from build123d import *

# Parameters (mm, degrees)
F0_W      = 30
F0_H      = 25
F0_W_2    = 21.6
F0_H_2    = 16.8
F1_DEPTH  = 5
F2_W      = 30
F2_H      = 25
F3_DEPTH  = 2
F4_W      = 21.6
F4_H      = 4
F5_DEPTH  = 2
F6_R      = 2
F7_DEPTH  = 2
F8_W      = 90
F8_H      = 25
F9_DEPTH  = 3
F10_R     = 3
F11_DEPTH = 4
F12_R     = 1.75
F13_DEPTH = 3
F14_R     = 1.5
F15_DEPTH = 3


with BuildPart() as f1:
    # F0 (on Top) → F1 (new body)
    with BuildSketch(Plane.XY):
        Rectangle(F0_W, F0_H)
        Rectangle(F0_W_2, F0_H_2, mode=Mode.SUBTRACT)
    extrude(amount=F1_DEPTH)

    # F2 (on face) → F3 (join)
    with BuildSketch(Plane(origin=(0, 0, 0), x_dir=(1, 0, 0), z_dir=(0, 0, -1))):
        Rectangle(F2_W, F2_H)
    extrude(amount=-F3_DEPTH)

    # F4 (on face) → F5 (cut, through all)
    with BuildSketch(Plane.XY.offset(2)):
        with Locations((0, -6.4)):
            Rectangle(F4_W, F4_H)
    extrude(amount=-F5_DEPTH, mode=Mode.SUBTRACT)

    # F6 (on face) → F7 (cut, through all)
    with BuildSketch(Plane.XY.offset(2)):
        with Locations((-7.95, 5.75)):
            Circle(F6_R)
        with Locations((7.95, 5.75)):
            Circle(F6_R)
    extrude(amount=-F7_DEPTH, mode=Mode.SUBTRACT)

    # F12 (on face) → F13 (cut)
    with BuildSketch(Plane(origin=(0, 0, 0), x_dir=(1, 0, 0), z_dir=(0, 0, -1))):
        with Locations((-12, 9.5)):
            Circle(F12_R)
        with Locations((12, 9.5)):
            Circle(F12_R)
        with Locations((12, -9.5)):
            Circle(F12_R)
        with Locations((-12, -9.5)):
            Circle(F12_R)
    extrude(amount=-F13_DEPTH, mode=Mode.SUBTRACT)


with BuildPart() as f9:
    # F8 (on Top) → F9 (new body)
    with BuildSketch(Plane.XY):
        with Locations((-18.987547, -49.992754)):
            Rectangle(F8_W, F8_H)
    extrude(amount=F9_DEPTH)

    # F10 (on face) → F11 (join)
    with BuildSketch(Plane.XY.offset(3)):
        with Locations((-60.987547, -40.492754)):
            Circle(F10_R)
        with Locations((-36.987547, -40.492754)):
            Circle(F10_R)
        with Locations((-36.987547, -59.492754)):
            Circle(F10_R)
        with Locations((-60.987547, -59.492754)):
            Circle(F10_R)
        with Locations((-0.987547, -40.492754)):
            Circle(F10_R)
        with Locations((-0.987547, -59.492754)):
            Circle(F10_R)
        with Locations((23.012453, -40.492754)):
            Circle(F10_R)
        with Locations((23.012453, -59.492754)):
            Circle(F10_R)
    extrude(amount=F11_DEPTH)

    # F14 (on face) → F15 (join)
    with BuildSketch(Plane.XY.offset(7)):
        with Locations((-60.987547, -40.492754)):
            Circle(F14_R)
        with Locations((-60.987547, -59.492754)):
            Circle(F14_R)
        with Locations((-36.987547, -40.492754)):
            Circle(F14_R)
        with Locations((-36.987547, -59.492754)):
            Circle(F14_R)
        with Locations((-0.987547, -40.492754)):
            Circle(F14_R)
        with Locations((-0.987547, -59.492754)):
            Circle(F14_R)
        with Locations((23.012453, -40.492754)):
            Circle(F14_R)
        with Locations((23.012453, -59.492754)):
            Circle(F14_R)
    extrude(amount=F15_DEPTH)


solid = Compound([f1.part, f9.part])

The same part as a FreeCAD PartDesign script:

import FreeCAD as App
import Part
import Sketcher

V = App.Vector


def add_polygon(sketch, points):
    """Adds a closed chain of lines whose ends are joined by coincident constraints."""
    first, n = sketch.GeometryCount, len(points)
    for a, b in zip(points, points[1:] + points[:1]):
        sketch.addGeometry(Part.LineSegment(App.Vector(*a, 0), App.Vector(*b, 0)), False)
    for i in range(n):
        sketch.addConstraint(Sketcher.Constraint("Coincident", first + i, 2, first + (i + 1) % n, 1))

doc = App.newDocument("Part")
params = doc.addObject("Spreadsheet::Sheet", "Params")
for row, (alias, value) in enumerate([
    ("sketch1_width", "30 mm"),
    ("sketch1_height", "25 mm"),
    ("sketch1_width2", "21.6 mm"),
    ("sketch1_height2", "16.8 mm"),
    ("pad1_length", "5 mm"),
    ("sketch2_width", "30 mm"),
    ("sketch2_height", "25 mm"),
    ("pad2_length", "2 mm"),
    ("sketch3_height", "4 mm"),
    ("sketch3_width", "21.6 mm"),
    ("sketch4_diameter", "4 mm"),
    ("sketch5_diameter", "3.5 mm"),
    ("pocket3_length", "3 mm"),
    ("sketch6_width", "90 mm"),
    ("sketch6_height", "25 mm"),
    ("pad3_length", "3 mm"),
    ("sketch7_diameter", "6 mm"),
    ("pad4_length", "4 mm"),
    ("sketch8_diameter", "3 mm"),
    ("pad5_length", "3 mm"),
], start=1):
    params.set(f"A{row}", alias)
    params.set(f"B{row}", "=" + value)
    params.setAlias(f"B{row}", alias)

body = doc.addObject("PartDesign::Body", "Body")

sketch1 = body.newObject("Sketcher::SketchObject", "Sketch")
sketch1.AttachmentSupport = (doc.getObject("XY_Plane"), [""])
sketch1.MapMode = "FlatFace"
add_polygon(sketch1, [(-15, 12), (-15, -12), (15, -12), (15, 12)])
add_polygon(sketch1, [(11, -8), (-11, -8), (-11, 8), (11, 8)])
sketch1.addConstraint([
    Sketcher.Constraint("Vertical", 0),
    Sketcher.Constraint("Horizontal", 1),
    Sketcher.Constraint("Vertical", 2),
    Sketcher.Constraint("Horizontal", 3),
    Sketcher.Constraint("Horizontal", 4),
    Sketcher.Constraint("Vertical", 5),
    Sketcher.Constraint("Horizontal", 6),
    Sketcher.Constraint("Vertical", 7),
    Sketcher.Constraint("Symmetric", 0, 2, 2, 2, -1, 1),
    Sketcher.Constraint("Symmetric", 4, 2, 6, 2, -1, 1),
    Sketcher.Constraint("DistanceX", 1, 1, 1, 2, 30.0),
    Sketcher.Constraint("DistanceY", 0, 2, 0, 1, 25.0),
    Sketcher.Constraint("DistanceX", 4, 2, 4, 1, 21.6),
    Sketcher.Constraint("DistanceY", 5, 1, 5, 2, 16.8),
])
sketch1.setExpression("Constraints[18]", "Params.sketch1_width")
sketch1.setExpression("Constraints[19]", "Params.sketch1_height")
sketch1.setExpression("Constraints[20]", "Params.sketch1_width2")
sketch1.setExpression("Constraints[21]", "Params.sketch1_height2")
pad1 = body.newObject("PartDesign::Pad", "Pad")
pad1.Profile = sketch1
pad1.setExpression("Length", "Params.pad1_length")

sketch2 = body.newObject("Sketcher::SketchObject", "Sketch001")
sketch2.AttachmentSupport = (doc.getObject("XY_Plane"), [""])
sketch2.MapMode = "FlatFace"
add_polygon(sketch2, [(-15, -12), (-15, 12), (15, 12), (15, -12)])
sketch2.addConstraint([
    Sketcher.Constraint("Vertical", 0),
    Sketcher.Constraint("Horizontal", 1),
    Sketcher.Constraint("Vertical", 2),
    Sketcher.Constraint("Horizontal", 3),
    Sketcher.Constraint("Symmetric", 0, 2, 2, 2, -1, 1),
    Sketcher.Constraint("DistanceX", 1, 1, 1, 2, 30.0),
    Sketcher.Constraint("DistanceY", 0, 1, 0, 2, 25.0),
])
sketch2.setExpression("Constraints[9]", "Params.sketch2_width")
sketch2.setExpression("Constraints[10]", "Params.sketch2_height")
pad2 = body.newObject("PartDesign::Pad", "Pad001")
pad2.Profile = sketch2
pad2.setExpression("Length", "Params.pad2_length")

sketch3 = body.newObject("Sketcher::SketchObject", "Sketch002")
sketch3.AttachmentSupport = (doc.getObject("XY_Plane"), [""])
sketch3.MapMode = "FlatFace"
sketch3.AttachmentOffset = App.Placement(V(0, 0, 2), App.Rotation())
add_polygon(sketch3, [(-10.8, -4.4), (-10.8, -8.4), (10.8, -8.4), (10.8, -4.4)])
sketch3.addConstraint([
    Sketcher.Constraint("Vertical", 0),
    Sketcher.Constraint("Horizontal", 1),
    Sketcher.Constraint("Vertical", 2),
    Sketcher.Constraint("Horizontal", 3),
    Sketcher.Constraint("DistanceY", 0, 2, 0, 1, 4.0),
    Sketcher.Constraint("DistanceX", 1, 1, 1, 2, 21.6),
    Sketcher.Constraint("DistanceX", 0, 2, -1, 1, 10.8),
    Sketcher.Constraint("DistanceY", 0, 2, -1, 1, 8.4),
])
sketch3.setExpression("Constraints[8]", "Params.sketch3_height")
sketch3.setExpression("Constraints[9]", "Params.sketch3_width")
pocket1 = body.newObject("PartDesign::Pocket", "Pocket")
pocket1.Profile = sketch3
pocket1.Type = "ThroughAll"

sketch4 = body.newObject("Sketcher::SketchObject", "Sketch003")
sketch4.AttachmentSupport = (doc.getObject("XY_Plane"), [""])
sketch4.MapMode = "FlatFace"
sketch4.AttachmentOffset = App.Placement(V(0, 0, 2), App.Rotation())
sketch4.addGeometry([
    Part.Circle(V(-8, 5.8, 0), V(0, 0, 1), 2),
    Part.Circle(V(8, 5.8, 0), V(0, 0, 1), 2),
], False)
sketch4.addConstraint([
    Sketcher.Constraint("Equal", 0, 1),
    Sketcher.Constraint("Symmetric", 0, 3, 1, 3, -2),
    Sketcher.Constraint("Diameter", 0, 4.0),
    Sketcher.Constraint("DistanceX", 0, 3, 1, 3, 15.9),
    Sketcher.Constraint("DistanceY", -1, 1, 0, 3, 5.75),
])
sketch4.setExpression("Constraints[2]", "Params.sketch4_diameter")
pocket2 = body.newObject("PartDesign::Pocket", "Pocket001")
pocket2.Profile = sketch4
pocket2.Type = "ThroughAll"

sketch5 = body.newObject("Sketcher::SketchObject", "Sketch004")
sketch5.AttachmentSupport = (doc.getObject("XY_Plane"), [""])
sketch5.MapMode = "FlatFace"
sketch5.addGeometry([
    Part.Circle(V(-12, -9.5, 0), V(0, 0, 1), 1.8),
    Part.Circle(V(12, -9.5, 0), V(0, 0, 1), 1.8),
    Part.Circle(V(12, 9.5, 0), V(0, 0, 1), 1.8),
    Part.Circle(V(-12, 9.5, 0), V(0, 0, 1), 1.8),
], False)
sketch5.addConstraint([
    Sketcher.Constraint("Equal", 0, 1),
    Sketcher.Constraint("Equal", 1, 2),
    Sketcher.Constraint("Equal", 2, 3),
    Sketcher.Constraint("Symmetric", 0, 3, 2, 3, -1, 1),
    Sketcher.Constraint("Symmetric", 1, 3, 3, 3, -1, 1),
    Sketcher.Constraint("Symmetric", 0, 3, 1, 3, -2),
    Sketcher.Constraint("Diameter", 0, 3.5),
    Sketcher.Constraint("DistanceX", 0, 3, -1, 1, 12.0),
    Sketcher.Constraint("DistanceY", 1, 3, 2, 3, 19.0),
])
sketch5.setExpression("Constraints[6]", "Params.sketch5_diameter")
pocket3 = body.newObject("PartDesign::Pocket", "Pocket002")
pocket3.Profile = sketch5
pocket3.setExpression("Length", "Params.pocket3_length")
pocket3.Reversed = True
body2 = doc.addObject("PartDesign::Body", "Body001")

sketch6 = body2.newObject("Sketcher::SketchObject", "Sketch005")
sketch6.AttachmentSupport = (doc.getObject("XY_Plane001"), [""])
sketch6.MapMode = "FlatFace"
add_polygon(sketch6, [(-64, -37), (-64, -62), (26, -62), (26, -37)])
sketch6.addConstraint([
    Sketcher.Constraint("Vertical", 0),
    Sketcher.Constraint("Horizontal", 1),
    Sketcher.Constraint("Vertical", 2),
    Sketcher.Constraint("Horizontal", 3),
    Sketcher.Constraint("DistanceX", 1, 1, 1, 2, 90.0),
    Sketcher.Constraint("DistanceY", 0, 2, 0, 1, 25.0),
    Sketcher.Constraint("DistanceX", 0, 2, -1, 1, 63.987547),
    Sketcher.Constraint("DistanceY", 0, 2, -1, 1, 62.492754),
])
sketch6.setExpression("Constraints[8]", "Params.sketch6_width")
sketch6.setExpression("Constraints[9]", "Params.sketch6_height")
pad3 = body2.newObject("PartDesign::Pad", "Pad002")
pad3.Profile = sketch6
pad3.setExpression("Length", "Params.pad3_length")

sketch7 = body2.newObject("Sketcher::SketchObject", "Sketch006")
sketch7.AttachmentSupport = (doc.getObject("XY_Plane001"), [""])
sketch7.MapMode = "FlatFace"
sketch7.AttachmentOffset = App.Placement(V(0, 0, 3), App.Rotation())
sketch7.addGeometry([
    Part.Circle(V(-61, -40.5, 0), V(0, 0, 1), 3),
    Part.Circle(V(-37, -40.5, 0), V(0, 0, 1), 3),
    Part.Circle(V(-37, -59.5, 0), V(0, 0, 1), 3),
    Part.Circle(V(-61, -59.5, 0), V(0, 0, 1), 3),
    Part.Circle(V(-1, -40.5, 0), V(0, 0, 1), 3),
    Part.Circle(V(-1, -59.5, 0), V(0, 0, 1), 3),
    Part.Circle(V(23, -40.5, 0), V(0, 0, 1), 3),
    Part.Circle(V(23, -59.5, 0), V(0, 0, 1), 3),
], False)
sketch7.addConstraint([
    Sketcher.Constraint("Equal", 0, 1),
    Sketcher.Constraint("Equal", 1, 2),
    Sketcher.Constraint("Equal", 2, 3),
    Sketcher.Constraint("Equal", 3, 4),
    Sketcher.Constraint("Equal", 4, 5),
    Sketcher.Constraint("Equal", 5, 6),
    Sketcher.Constraint("Equal", 6, 7),
    Sketcher.Constraint("Horizontal", 0, 3, 1, 3),
    Sketcher.Constraint("Horizontal", 2, 3, 3, 3),
    Sketcher.Constraint("Horizontal", 1, 3, 4, 3),
    Sketcher.Constraint("Horizontal", 3, 3, 5, 3),
    Sketcher.Constraint("Horizontal", 4, 3, 6, 3),
    Sketcher.Constraint("Horizontal", 5, 3, 7, 3),
    Sketcher.Constraint("Vertical", 1, 3, 2, 3),
    Sketcher.Constraint("Vertical", 0, 3, 3, 3),
    Sketcher.Constraint("Vertical", 4, 3, 5, 3),
    Sketcher.Constraint("Vertical", 6, 3, 7, 3),
    Sketcher.Constraint("Diameter", 0, 6.0),
    Sketcher.Constraint("DistanceX", 0, 3, 1, 3, 24.0),
    Sketcher.Constraint("DistanceY", 2, 3, 1, 3, 19.0),
    Sketcher.Constraint("DistanceX", 1, 3, 4, 3, 36.0),
    Sketcher.Constraint("DistanceX", 4, 3, 6, 3, 24.0),
    Sketcher.Constraint("DistanceX", 0, 3, -1, 1, 60.987547),
    Sketcher.Constraint("DistanceY", 0, 3, -1, 1, 40.492754),
])
sketch7.setExpression("Constraints[17]", "Params.sketch7_diameter")
pad4 = body2.newObject("PartDesign::Pad", "Pad003")
pad4.Profile = sketch7
pad4.setExpression("Length", "Params.pad4_length")

sketch8 = body2.newObject("Sketcher::SketchObject", "Sketch007")
sketch8.AttachmentSupport = (doc.getObject("XY_Plane001"), [""])
sketch8.MapMode = "FlatFace"
sketch8.AttachmentOffset = App.Placement(V(0, 0, 7), App.Rotation())
sketch8.addGeometry([
    Part.Circle(V(-61, -40.5, 0), V(0, 0, 1), 1.5),
    Part.Circle(V(-61, -59.5, 0), V(0, 0, 1), 1.5),
    Part.Circle(V(-37, -40.5, 0), V(0, 0, 1), 1.5),
    Part.Circle(V(-37, -59.5, 0), V(0, 0, 1), 1.5),
    Part.Circle(V(-1, -40.5, 0), V(0, 0, 1), 1.5),
    Part.Circle(V(-1, -59.5, 0), V(0, 0, 1), 1.5),
    Part.Circle(V(23, -40.5, 0), V(0, 0, 1), 1.5),
    Part.Circle(V(23, -59.5, 0), V(0, 0, 1), 1.5),
], False)
sketch8.addConstraint([
    Sketcher.Constraint("Equal", 0, 1),
    Sketcher.Constraint("Equal", 1, 2),
    Sketcher.Constraint("Equal", 2, 3),
    Sketcher.Constraint("Equal", 3, 4),
    Sketcher.Constraint("Equal", 4, 5),
    Sketcher.Constraint("Equal", 5, 6),
    Sketcher.Constraint("Equal", 6, 7),
    Sketcher.Constraint("Horizontal", 0, 3, 2, 3),
    Sketcher.Constraint("Horizontal", 1, 3, 3, 3),
    Sketcher.Constraint("Horizontal", 2, 3, 4, 3),
    Sketcher.Constraint("Horizontal", 3, 3, 5, 3),
    Sketcher.Constraint("Horizontal", 4, 3, 6, 3),
    Sketcher.Constraint("Horizontal", 5, 3, 7, 3),
    Sketcher.Constraint("Vertical", 0, 3, 1, 3),
    Sketcher.Constraint("Vertical", 2, 3, 3, 3),
    Sketcher.Constraint("Vertical", 4, 3, 5, 3),
    Sketcher.Constraint("Vertical", 6, 3, 7, 3),
    Sketcher.Constraint("Diameter", 0, 3.0),
    Sketcher.Constraint("DistanceY", 1, 3, 0, 3, 19.0),
    Sketcher.Constraint("DistanceX", 0, 3, 2, 3, 24.0),
    Sketcher.Constraint("DistanceX", 2, 3, 4, 3, 36.0),
    Sketcher.Constraint("DistanceX", 4, 3, 6, 3, 24.0),
    Sketcher.Constraint("DistanceX", 0, 3, -1, 1, 60.987547),
    Sketcher.Constraint("DistanceY", 0, 3, -1, 1, 40.492754),
])
sketch8.setExpression("Constraints[17]", "Params.sketch8_diameter")
pad5 = body2.newObject("PartDesign::Pad", "Pad004")
pad5.Profile = sketch8
pad5.setExpression("Length", "Params.pad5_length")

doc.recompute()
